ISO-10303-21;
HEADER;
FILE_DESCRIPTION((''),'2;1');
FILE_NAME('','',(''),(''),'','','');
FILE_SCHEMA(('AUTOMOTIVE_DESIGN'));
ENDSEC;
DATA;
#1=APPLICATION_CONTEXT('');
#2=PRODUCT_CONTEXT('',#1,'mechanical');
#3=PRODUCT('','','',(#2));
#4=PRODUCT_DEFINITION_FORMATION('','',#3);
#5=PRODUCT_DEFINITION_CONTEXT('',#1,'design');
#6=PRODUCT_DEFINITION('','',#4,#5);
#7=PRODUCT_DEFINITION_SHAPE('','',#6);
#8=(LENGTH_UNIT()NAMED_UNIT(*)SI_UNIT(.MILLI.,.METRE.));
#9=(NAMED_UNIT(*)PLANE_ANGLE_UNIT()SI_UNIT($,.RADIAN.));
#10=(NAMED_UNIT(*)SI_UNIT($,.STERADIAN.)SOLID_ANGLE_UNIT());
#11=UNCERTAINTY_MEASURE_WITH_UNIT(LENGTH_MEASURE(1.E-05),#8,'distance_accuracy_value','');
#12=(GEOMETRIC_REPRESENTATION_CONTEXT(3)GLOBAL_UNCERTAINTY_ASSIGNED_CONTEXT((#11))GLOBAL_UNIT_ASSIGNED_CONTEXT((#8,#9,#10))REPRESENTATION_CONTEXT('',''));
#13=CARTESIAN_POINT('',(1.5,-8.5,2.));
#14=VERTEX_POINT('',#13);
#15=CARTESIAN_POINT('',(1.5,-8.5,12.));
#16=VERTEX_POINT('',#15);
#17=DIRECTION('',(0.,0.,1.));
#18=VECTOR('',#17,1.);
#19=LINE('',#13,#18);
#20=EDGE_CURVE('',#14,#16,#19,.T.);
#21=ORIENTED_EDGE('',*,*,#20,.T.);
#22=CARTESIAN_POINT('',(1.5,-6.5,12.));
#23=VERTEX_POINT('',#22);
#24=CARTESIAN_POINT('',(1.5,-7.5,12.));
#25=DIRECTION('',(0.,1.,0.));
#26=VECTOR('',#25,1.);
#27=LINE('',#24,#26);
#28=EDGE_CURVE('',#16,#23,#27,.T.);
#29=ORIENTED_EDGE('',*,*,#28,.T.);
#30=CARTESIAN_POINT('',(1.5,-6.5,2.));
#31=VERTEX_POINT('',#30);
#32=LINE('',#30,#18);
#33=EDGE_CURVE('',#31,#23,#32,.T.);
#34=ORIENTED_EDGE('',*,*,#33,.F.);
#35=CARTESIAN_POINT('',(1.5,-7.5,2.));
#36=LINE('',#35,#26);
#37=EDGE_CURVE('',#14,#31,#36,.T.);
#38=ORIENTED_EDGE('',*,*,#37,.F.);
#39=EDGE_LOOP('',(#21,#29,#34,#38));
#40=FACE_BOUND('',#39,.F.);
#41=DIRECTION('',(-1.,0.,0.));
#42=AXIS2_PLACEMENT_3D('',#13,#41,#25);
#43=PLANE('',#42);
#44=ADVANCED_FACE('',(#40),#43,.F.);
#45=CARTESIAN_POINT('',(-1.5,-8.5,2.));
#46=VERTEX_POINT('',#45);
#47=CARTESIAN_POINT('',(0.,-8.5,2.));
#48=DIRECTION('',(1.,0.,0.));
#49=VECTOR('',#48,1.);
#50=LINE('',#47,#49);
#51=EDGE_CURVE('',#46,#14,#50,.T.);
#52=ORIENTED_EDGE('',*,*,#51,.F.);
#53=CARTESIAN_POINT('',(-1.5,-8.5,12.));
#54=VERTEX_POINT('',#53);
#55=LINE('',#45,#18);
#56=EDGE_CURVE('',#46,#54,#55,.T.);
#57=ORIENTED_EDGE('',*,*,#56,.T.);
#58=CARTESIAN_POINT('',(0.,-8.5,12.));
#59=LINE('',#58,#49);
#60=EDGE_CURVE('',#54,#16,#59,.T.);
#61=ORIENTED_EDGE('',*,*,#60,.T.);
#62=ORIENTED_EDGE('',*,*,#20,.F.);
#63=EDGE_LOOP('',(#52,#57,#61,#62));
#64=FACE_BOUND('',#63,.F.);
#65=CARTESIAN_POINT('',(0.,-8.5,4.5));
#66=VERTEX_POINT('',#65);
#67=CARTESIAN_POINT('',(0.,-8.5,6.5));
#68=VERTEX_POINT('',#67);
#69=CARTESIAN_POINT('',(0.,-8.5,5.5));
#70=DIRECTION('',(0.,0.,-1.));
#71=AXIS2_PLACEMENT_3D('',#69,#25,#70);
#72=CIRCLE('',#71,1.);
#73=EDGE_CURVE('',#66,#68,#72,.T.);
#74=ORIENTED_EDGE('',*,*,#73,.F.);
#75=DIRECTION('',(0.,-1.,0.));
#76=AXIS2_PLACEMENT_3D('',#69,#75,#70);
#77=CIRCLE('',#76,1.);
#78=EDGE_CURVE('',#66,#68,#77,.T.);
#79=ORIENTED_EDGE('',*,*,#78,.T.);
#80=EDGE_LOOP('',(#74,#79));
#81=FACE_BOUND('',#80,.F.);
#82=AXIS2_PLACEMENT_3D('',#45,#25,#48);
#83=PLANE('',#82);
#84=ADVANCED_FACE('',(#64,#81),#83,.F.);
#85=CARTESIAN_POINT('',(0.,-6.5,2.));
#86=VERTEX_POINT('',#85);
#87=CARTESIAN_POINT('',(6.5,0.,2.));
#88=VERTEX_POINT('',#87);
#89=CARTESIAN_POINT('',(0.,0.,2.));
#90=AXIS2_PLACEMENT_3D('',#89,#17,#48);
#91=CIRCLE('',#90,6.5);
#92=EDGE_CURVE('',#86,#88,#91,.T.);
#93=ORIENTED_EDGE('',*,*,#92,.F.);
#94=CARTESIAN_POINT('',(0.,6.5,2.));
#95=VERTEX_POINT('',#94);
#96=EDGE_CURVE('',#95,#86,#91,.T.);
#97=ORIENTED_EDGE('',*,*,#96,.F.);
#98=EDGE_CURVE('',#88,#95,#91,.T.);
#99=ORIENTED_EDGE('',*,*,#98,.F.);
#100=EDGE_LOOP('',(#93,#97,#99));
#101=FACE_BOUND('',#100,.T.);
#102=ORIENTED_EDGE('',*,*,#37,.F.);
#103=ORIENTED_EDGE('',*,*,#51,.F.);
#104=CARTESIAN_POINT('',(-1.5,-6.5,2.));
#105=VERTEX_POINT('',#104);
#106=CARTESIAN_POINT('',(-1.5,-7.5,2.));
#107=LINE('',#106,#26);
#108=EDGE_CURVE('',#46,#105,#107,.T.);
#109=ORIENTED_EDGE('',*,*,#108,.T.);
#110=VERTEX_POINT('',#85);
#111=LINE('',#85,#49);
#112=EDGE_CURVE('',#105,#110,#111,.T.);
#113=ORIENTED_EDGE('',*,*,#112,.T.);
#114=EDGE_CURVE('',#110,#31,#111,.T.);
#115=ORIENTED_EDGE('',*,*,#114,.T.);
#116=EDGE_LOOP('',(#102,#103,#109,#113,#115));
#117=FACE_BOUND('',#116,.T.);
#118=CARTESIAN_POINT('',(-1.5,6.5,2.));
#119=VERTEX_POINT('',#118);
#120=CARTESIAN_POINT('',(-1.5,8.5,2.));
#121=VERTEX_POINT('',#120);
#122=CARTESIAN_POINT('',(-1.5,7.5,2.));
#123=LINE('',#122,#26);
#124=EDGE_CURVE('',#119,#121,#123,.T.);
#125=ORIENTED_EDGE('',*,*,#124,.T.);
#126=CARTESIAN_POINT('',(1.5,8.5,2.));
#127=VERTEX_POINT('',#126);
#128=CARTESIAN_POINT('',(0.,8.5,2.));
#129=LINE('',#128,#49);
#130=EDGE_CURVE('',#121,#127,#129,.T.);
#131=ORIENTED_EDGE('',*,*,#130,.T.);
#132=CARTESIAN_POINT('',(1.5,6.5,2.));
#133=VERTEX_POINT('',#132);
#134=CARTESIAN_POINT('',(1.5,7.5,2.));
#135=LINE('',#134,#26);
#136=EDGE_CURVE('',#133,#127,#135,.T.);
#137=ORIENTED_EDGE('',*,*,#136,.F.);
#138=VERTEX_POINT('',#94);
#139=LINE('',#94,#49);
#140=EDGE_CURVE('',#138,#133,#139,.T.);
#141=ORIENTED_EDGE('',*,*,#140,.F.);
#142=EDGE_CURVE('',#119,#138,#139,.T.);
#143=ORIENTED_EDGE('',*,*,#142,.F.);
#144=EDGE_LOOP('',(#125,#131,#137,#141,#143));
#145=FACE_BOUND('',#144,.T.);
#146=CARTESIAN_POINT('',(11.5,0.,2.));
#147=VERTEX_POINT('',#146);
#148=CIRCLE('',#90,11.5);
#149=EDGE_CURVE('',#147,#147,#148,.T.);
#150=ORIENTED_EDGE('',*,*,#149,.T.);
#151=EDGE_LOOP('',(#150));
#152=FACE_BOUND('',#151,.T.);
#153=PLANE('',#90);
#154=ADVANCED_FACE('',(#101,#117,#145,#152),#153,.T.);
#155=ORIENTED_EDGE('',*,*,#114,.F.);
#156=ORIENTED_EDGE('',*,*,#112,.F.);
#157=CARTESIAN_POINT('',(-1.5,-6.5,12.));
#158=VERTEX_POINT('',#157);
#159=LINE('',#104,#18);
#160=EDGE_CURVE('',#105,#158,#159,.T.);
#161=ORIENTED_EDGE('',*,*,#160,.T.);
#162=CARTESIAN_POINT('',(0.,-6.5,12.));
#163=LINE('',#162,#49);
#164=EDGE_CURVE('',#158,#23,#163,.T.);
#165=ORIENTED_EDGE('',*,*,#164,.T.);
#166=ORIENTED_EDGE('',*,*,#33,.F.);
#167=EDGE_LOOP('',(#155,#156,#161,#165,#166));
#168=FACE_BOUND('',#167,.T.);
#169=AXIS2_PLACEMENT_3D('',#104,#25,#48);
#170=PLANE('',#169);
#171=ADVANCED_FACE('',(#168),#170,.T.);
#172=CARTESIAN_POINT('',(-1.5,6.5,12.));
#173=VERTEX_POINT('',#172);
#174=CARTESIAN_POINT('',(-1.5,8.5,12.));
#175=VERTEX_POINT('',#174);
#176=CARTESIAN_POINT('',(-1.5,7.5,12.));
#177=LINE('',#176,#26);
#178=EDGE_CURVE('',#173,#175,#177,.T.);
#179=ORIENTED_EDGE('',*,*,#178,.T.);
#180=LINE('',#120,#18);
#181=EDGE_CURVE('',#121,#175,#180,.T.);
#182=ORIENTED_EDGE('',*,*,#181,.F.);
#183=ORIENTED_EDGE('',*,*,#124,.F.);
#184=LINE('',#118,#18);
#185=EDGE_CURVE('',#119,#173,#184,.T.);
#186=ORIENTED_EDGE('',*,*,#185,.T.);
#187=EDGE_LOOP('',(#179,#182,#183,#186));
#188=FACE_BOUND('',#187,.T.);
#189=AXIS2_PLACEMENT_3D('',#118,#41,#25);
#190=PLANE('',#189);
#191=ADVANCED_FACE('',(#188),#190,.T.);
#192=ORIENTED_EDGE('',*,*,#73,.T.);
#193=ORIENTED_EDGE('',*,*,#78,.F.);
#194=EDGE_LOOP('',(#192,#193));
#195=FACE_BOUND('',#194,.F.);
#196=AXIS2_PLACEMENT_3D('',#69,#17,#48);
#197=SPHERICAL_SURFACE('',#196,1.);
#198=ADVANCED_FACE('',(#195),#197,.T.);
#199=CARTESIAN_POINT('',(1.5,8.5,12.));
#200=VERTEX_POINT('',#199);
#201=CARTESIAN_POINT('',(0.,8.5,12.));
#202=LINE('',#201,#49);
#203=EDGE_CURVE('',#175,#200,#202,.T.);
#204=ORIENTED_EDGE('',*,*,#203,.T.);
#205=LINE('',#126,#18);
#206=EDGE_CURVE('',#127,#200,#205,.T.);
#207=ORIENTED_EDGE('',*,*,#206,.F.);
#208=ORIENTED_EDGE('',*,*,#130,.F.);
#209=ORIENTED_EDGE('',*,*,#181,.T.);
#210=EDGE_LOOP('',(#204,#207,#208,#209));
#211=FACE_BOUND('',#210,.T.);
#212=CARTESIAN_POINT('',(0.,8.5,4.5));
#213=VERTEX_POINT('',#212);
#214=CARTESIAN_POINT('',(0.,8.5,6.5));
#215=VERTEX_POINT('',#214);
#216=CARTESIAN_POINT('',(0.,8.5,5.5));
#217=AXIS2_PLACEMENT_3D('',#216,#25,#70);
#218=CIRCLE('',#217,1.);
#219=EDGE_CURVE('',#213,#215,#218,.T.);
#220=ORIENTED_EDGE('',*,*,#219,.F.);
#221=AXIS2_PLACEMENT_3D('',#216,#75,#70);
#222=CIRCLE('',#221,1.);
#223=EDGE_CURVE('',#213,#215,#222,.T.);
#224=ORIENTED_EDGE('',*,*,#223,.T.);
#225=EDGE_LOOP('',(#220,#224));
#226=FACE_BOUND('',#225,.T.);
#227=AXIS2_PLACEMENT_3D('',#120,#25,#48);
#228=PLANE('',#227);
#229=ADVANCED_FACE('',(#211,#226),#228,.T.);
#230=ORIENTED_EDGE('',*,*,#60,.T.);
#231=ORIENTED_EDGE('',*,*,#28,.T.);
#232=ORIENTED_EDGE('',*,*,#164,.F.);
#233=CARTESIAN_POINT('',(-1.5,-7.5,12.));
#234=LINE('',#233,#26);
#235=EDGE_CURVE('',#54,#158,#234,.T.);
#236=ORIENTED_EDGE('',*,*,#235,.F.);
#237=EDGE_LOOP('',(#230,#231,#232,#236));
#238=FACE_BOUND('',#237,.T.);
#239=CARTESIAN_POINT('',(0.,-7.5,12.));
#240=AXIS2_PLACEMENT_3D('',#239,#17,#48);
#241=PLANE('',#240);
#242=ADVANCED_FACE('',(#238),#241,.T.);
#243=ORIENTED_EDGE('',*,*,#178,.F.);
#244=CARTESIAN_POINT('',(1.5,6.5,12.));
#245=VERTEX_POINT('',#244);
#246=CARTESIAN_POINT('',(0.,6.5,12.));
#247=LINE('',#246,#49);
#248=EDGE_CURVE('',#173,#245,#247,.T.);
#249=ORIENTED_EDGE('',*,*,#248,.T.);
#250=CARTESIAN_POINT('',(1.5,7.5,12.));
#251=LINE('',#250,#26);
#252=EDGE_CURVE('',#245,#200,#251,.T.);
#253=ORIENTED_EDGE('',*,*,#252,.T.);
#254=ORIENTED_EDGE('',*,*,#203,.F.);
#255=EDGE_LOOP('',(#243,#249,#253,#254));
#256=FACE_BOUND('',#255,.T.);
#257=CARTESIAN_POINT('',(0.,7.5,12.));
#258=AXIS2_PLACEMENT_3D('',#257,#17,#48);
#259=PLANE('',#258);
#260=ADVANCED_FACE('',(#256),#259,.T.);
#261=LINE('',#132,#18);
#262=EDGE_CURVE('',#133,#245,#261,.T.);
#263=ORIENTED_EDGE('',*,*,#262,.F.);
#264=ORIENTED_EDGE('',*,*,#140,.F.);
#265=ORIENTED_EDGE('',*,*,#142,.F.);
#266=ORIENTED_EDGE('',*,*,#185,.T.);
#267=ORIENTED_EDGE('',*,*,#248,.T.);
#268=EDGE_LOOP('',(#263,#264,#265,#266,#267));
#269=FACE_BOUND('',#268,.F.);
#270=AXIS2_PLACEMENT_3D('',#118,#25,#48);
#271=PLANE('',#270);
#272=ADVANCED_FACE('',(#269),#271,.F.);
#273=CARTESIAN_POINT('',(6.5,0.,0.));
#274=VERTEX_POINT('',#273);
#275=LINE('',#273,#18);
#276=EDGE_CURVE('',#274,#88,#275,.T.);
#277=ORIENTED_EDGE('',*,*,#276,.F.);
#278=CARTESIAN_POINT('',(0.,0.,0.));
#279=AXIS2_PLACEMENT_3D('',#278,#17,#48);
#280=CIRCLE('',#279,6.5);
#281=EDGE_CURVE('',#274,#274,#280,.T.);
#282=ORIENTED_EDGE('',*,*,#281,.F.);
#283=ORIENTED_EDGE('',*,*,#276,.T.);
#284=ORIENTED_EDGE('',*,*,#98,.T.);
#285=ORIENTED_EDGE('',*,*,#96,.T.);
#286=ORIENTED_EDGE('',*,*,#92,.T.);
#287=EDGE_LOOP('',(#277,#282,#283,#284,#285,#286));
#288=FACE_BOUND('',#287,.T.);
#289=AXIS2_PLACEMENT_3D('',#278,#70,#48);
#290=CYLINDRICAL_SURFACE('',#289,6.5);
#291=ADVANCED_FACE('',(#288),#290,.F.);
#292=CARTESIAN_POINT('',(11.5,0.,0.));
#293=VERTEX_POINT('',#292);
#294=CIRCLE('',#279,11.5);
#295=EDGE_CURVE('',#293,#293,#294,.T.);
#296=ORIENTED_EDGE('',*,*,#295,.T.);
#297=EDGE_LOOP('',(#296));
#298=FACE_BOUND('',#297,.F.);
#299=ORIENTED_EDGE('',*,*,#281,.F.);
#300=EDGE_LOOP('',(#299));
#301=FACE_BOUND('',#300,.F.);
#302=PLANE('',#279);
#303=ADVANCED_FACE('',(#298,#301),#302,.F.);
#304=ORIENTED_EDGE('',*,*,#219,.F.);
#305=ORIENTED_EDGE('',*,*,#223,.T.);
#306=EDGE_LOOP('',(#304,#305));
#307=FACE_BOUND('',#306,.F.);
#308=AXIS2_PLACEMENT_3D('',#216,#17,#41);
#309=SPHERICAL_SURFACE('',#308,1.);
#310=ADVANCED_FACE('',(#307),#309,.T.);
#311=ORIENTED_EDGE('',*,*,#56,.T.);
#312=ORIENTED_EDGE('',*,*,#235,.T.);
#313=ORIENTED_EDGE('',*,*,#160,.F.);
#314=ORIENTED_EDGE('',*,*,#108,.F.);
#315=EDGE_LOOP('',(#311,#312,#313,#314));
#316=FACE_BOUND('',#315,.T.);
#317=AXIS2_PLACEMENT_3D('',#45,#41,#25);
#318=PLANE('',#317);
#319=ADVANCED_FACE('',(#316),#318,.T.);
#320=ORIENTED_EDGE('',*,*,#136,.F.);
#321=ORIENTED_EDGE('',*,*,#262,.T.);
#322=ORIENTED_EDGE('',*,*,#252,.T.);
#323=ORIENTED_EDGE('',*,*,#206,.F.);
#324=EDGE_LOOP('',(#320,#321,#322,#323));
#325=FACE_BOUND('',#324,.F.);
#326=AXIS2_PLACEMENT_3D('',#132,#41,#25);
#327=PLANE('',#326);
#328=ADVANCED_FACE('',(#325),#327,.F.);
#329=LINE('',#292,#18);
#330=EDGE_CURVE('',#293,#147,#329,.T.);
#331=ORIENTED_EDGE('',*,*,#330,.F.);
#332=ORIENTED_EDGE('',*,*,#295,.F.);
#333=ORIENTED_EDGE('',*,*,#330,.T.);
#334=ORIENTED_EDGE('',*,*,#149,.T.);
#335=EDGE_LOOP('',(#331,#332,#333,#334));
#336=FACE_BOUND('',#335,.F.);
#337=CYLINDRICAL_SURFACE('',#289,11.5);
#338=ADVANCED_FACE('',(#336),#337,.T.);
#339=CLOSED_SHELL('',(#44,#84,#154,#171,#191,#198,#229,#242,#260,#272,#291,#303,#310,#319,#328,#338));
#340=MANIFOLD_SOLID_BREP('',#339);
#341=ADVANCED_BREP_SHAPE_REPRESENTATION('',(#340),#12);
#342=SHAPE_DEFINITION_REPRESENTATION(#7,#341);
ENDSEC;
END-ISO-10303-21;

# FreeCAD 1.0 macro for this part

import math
import FreeCAD as App
import Part
import Sketcher
Q = App.Units.Quantity


def add_polygon(sketch, points):
    """Adds a closed chain of lines whose ends are joined by coincident constraints."""
    first, n = sketch.GeometryCount, len(points)
    for a, b in zip(points, points[1:] + points[:1]):
        sketch.addGeometry(Part.LineSegment(App.Vector(*a, 0), App.Vector(*b, 0)), False)
    for i in range(n):
        sketch.addConstraint(Sketcher.Constraint("Coincident", first + i, 2, first + (i + 1) % n, 1))

doc = App.newDocument("Part")
body = doc.addObject("PartDesign::Body", "Body")

# Sketch on XY plane
sketch1 = body.newObject("Sketcher::SketchObject", "Sketch")
sketch1.AttachmentSupport = (doc.getObject("XY_Plane"), [""])
sketch1.MapMode = "FlatFace"
sketch1.addGeometry(Part.Circle(App.Vector(0, 0, 0), App.Vector(0, 0, 1), 11.5), False)
sketch1.addGeometry(Part.Circle(App.Vector(0, 0, 0), App.Vector(0, 0, 1), 6.5), False)
sketch1.addConstraint(Sketcher.Constraint("Coincident", 0, 3, -1, 1))
sketch1.addConstraint(Sketcher.Constraint("Coincident", 1, 3, -1, 1))
sketch1.addConstraint(Sketcher.Constraint("Diameter", 0, Q("23 mm")))
sketch1.addConstraint(Sketcher.Constraint("Diameter", 1, Q("13 mm")))
pad1 = body.newObject("PartDesign::Pad", "Pad")
pad1.Profile = sketch1
pad1.Length = 2

# Sketch on XY plane
sketch2 = body.newObject("Sketcher::SketchObject", "Sketch001")
sketch2.AttachmentSupport = (doc.getObject("XY_Plane"), [""])
sketch2.MapMode = "FlatFace"
sketch2.AttachmentOffset = App.Placement(App.Vector(0, 0, 2), App.Rotation())
add_polygon(sketch2, [(-1.5, 8.5), (-1.5, 6.5), (1.5, 6.5), (1.5, 8.5)])  # lines 0-3
add_polygon(sketch2, [(-1.5, -6.5), (-1.5, -8.5), (1.5, -8.5), (1.5, -6.5)])  # lines 4-7
sketch2.addConstraint(Sketcher.Constraint("Vertical", 0))
sketch2.addConstraint(Sketcher.Constraint("Horizontal", 1))
sketch2.addConstraint(Sketcher.Constraint("Vertical", 2))
sketch2.addConstraint(Sketcher.Constraint("Horizontal", 3))
sketch2.addConstraint(Sketcher.Constraint("Vertical", 4))
sketch2.addConstraint(Sketcher.Constraint("Horizontal", 5))
sketch2.addConstraint(Sketcher.Constraint("Vertical", 6))
sketch2.addConstraint(Sketcher.Constraint("Horizontal", 7))
sketch2.addConstraint(Sketcher.Constraint("Symmetric", 2, 2, 4, 2, -1, 1))
sketch2.addConstraint(Sketcher.Constraint("Symmetric", 0, 2, 6, 2, -1, 1))
sketch2.addConstraint(Sketcher.Constraint("Vertical", 3, 2, 4, 2))
sketch2.addConstraint(Sketcher.Constraint("DistanceX", 1, 1, 1, 2, Q("3 mm")))
sketch2.addConstraint(Sketcher.Constraint("DistanceY", 0, 2, 0, 1, Q("2 mm")))
sketch2.addConstraint(Sketcher.Constraint("DistanceY", 4, 2, 0, 2, Q("15 mm")))
pad2 = body.newObject("PartDesign::Pad", "Pad001")
pad2.Profile = sketch2
pad2.Length = 10

# Sketch on XZ plane
sketch3 = body.newObject("Sketcher::SketchObject", "Sketch002")
sketch3.AttachmentSupport = (doc.getObject("XZ_Plane"), [""])
sketch3.MapMode = "FlatFace"
sketch3.AttachmentOffset = App.Placement(App.Vector(0, 0, 8.5), App.Rotation())
sketch3.addGeometry(Part.ArcOfCircle(Part.Circle(App.Vector(0, 5.5, 0), App.Vector(0, 0, 1), 1), math.radians(-90), math.radians(90)), False)
sketch3.addGeometry(Part.LineSegment(App.Vector(0, 6.5, 0), App.Vector(0, 4.5, 0)), False)
sketch3.addConstraint(Sketcher.Constraint("Coincident", 0, 1, 1, 2))
sketch3.addConstraint(Sketcher.Constraint("Coincident", 1, 1, 0, 2))
sketch3.addConstraint(Sketcher.Constraint("Vertical", 1))
sketch3.addConstraint(Sketcher.Constraint("PointOnObject", 0, 3, -2))
sketch3.addConstraint(Sketcher.Constraint("PointOnObject", 0, 1, -2))
sketch3.addConstraint(Sketcher.Constraint("Radius", 0, Q("1 mm")))
sketch3.addConstraint(Sketcher.Constraint("DistanceY", -1, 1, 0, 3, Q("5.5 mm")))
revolution = body.newObject("PartDesign::Revolution", "Revolution")
revolution.Profile = sketch3
revolution.ReferenceAxis = (sketch3, ["V_Axis"])
revolution.Angle = 180
revolution.Reversed = True

# Sketch on XZ plane
sketch4 = body.newObject("Sketcher::SketchObject", "Sketch003")
sketch4.AttachmentSupport = (doc.getObject("XZ_Plane"), [""])
sketch4.MapMode = "FlatFace"
sketch4.AttachmentOffset = App.Placement(App.Vector(0, 0, -8.5), App.Rotation())
sketch4.addGeometry(Part.ArcOfCircle(Part.Circle(App.Vector(0, 5.5, 0), App.Vector(0, 0, 1), 1), math.radians(90), math.radians(270)), False)
sketch4.addGeometry(Part.LineSegment(App.Vector(0, 6.5, 0), App.Vector(0, 4.5, 0)), False)
sketch4.addConstraint(Sketcher.Constraint("Coincident", 0, 1, 1, 1))
sketch4.addConstraint(Sketcher.Constraint("Coincident", 1, 2, 0, 2))
sketch4.addConstraint(Sketcher.Constraint("Vertical", 1))
sketch4.addConstraint(Sketcher.Constraint("PointOnObject", 0, 3, -2))
sketch4.addConstraint(Sketcher.Constraint("PointOnObject", 0, 1, -2))
sketch4.addConstraint(Sketcher.Constraint("Radius", 0, Q("1 mm")))
sketch4.addConstraint(Sketcher.Constraint("DistanceY", -1, 1, 0, 3, Q("5.5 mm")))
revolution2 = body.newObject("PartDesign::Revolution", "Revolution001")
revolution2.Profile = sketch4
revolution2.ReferenceAxis = (sketch4, ["V_Axis"])
revolution2.Angle = 180
revolution2.Reversed = True

doc.recompute()
